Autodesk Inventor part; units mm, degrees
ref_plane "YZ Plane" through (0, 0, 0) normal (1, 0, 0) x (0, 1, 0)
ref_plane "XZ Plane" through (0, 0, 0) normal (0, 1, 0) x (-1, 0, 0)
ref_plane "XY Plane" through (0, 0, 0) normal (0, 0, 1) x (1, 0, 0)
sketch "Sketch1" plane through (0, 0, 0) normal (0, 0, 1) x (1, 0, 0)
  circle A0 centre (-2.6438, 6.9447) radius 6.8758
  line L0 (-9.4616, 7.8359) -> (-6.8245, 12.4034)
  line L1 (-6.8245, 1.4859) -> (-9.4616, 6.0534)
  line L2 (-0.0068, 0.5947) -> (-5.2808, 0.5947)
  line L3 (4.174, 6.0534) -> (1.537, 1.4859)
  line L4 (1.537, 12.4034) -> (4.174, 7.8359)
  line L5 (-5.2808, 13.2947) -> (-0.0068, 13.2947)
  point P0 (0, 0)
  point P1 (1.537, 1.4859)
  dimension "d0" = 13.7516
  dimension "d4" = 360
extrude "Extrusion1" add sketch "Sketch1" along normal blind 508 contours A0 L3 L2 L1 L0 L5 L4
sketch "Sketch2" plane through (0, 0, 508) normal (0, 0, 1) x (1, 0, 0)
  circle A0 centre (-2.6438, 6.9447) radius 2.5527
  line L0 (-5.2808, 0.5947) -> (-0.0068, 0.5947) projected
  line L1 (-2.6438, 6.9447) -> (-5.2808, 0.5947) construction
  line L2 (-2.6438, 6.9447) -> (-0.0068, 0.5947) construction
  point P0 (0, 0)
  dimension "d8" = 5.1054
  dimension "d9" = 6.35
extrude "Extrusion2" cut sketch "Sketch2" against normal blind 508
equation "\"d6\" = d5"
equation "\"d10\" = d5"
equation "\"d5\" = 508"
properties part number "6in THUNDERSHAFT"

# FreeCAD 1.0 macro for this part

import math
import FreeCAD as App
import Part
import Sketcher

V = App.Vector
Q = App.Units.Quantity

doc = App.newDocument("Part")
body = doc.addObject("PartDesign::Body", "Body")

# Sketch on XY plane
sketch1 = body.newObject("Sketcher::SketchObject", "Sketch")
sketch1.AttachmentSupport = (doc.getObject("XY_Plane"), [""])
sketch1.MapMode = "FlatFace"
sketch1.addGeometry([
    Part.ArcOfCircle(Part.Circle(V(-2.6438, 6.9447, 0), V(0, 0, 1), 6.8758), math.radians(-7.448114), math.radians(7.447287)),  # 0
    Part.LineSegment(V(4.174, 7.8359, 0), V(1.537, 12.4034, 0)),  # 1
    Part.ArcOfCircle(Part.Circle(V(-2.6438, 6.9447, 0), V(0, 0, 1), 6.8758), math.radians(52.551618), math.radians(67.448081)),  # 2
    Part.LineSegment(V(-0.0068, 13.2947, 0), V(-5.2808, 13.2947, 0)),  # 3
    Part.ArcOfCircle(Part.Circle(V(-2.6438, 6.9447, 0), V(0, 0, 1), 6.8758), math.radians(112.551919), math.radians(127.447721)),  # 4
    Part.LineSegment(V(-6.8245, 12.4034, 0), V(-9.4616, 7.8359, 0)),  # 5
    Part.ArcOfCircle(Part.Circle(V(-2.6438, 6.9447, 0), V(0, 0, 1), 6.8758), math.radians(172.552713), math.radians(187.448114)),  # 6
    Part.LineSegment(V(-9.4616, 6.0534, 0), V(-6.8245, 1.4859, 0)),  # 7
    Part.ArcOfCircle(Part.Circle(V(-2.6438, 6.9447, 0), V(0, 0, 1), 6.8758), math.radians(-127.447214), math.radians(-112.551919)),  # 8
    Part.LineSegment(V(-5.2808, 0.5947, 0), V(-0.0068, 0.5947, 0)),  # 9
    Part.ArcOfCircle(Part.Circle(V(-2.6438, 6.9447, 0), V(0, 0, 1), 6.8758), math.radians(-67.448081), math.radians(-52.552124)),  # 10
    Part.LineSegment(V(1.537, 1.4859, 0), V(4.174, 6.0534, 0)),  # 11
], False)
sketch1.addConstraint([
    Sketcher.Constraint("Coincident", 0, 2, 1, 1),
    Sketcher.Constraint("Coincident", 1, 2, 2, 1),
    Sketcher.Constraint("Coincident", 2, 2, 3, 1),
    Sketcher.Constraint("Coincident", 3, 2, 4, 1),
    Sketcher.Constraint("Coincident", 4, 2, 5, 1),
    Sketcher.Constraint("Coincident", 5, 2, 6, 1),
    Sketcher.Constraint("Coincident", 6, 2, 7, 1),
    Sketcher.Constraint("Coincident", 7, 2, 8, 1),
    Sketcher.Constraint("Coincident", 8, 2, 9, 1),
    Sketcher.Constraint("Coincident", 9, 2, 10, 1),
    Sketcher.Constraint("Coincident", 10, 2, 11, 1),
    Sketcher.Constraint("Coincident", 11, 2, 0, 1),
    Sketcher.Constraint("Horizontal", 3),
    Sketcher.Constraint("Horizontal", 9),
    Sketcher.Constraint("Coincident", 2, 3, 0, 3),
    Sketcher.Constraint("Coincident", 4, 3, 0, 3),
    Sketcher.Constraint("Coincident", 6, 3, 0, 3),
    Sketcher.Constraint("Coincident", 8, 3, 0, 3),
    Sketcher.Constraint("Coincident", 10, 3, 0, 3),
    Sketcher.Constraint("Equal", 0, 2),
    Sketcher.Constraint("Equal", 2, 4),
    Sketcher.Constraint("Equal", 4, 6),
    Sketcher.Constraint("Equal", 6, 8),
    Sketcher.Constraint("Equal", 8, 10),
    Sketcher.Constraint("Parallel", 1, 7),
    Sketcher.Constraint("Parallel", 5, 11),
    Sketcher.Constraint("Horizontal", 1, 2, 4, 2),
    Sketcher.Constraint("Horizontal", 0, 2, 5, 2),
    Sketcher.Constraint("Horizontal", 7, 2, 10, 2),
    Sketcher.Constraint("Vertical", 5, 2, 6, 2),
    Sketcher.Constraint("Vertical", 3, 2, 8, 2),
    Sketcher.Constraint("Radius", 0, Q("0.2707 in")),
    Sketcher.Constraint("Angle", 1, Q("119.9996 deg")),
    Sketcher.Constraint("DistanceY", 0, 3, 2, 2, Q("0.25 in")),
    Sketcher.Constraint("DistanceY", 10, 2, 0, 2, Q("0.25 in")),
    Sketcher.Constraint("DistanceY", -1, 1, 0, 2, Q("0.3085 in")),
    Sketcher.Constraint("DistanceX", -1, 1, 1, 2, Q("0.0605 in")),
])
pad1 = body.newObject("PartDesign::Pad", "Pad")
pad1.Profile = sketch1
pad1.Length = Q("20 in")

# Sketch on XY plane
sketch2 = body.newObject("Sketcher::SketchObject", "Sketch001")
sketch2.AttachmentSupport = (doc.getObject("XY_Plane"), [""])
sketch2.MapMode = "FlatFace"
sketch2.AttachmentOffset = App.Placement(V(0, 0, 20 * 25.4), App.Rotation())
sketch2.addGeometry(Part.Circle(V(-2.6438, 6.9447, 0), V(0, 0, 1), 2.5527), False)
sketch2.addConstraint([
    Sketcher.Constraint("Diameter", 0, Q("0.201 in")),
    Sketcher.Constraint("DistanceX", 0, 3, -1, 1, 2.6438),
    Sketcher.Constraint("DistanceY", -1, 1, 0, 3, 6.9447),
])
pocket1 = body.newObject("PartDesign::Pocket", "Pocket")
pocket1.Profile = sketch2
pocket1.Length = Q("20 in")

doc.recompute()
